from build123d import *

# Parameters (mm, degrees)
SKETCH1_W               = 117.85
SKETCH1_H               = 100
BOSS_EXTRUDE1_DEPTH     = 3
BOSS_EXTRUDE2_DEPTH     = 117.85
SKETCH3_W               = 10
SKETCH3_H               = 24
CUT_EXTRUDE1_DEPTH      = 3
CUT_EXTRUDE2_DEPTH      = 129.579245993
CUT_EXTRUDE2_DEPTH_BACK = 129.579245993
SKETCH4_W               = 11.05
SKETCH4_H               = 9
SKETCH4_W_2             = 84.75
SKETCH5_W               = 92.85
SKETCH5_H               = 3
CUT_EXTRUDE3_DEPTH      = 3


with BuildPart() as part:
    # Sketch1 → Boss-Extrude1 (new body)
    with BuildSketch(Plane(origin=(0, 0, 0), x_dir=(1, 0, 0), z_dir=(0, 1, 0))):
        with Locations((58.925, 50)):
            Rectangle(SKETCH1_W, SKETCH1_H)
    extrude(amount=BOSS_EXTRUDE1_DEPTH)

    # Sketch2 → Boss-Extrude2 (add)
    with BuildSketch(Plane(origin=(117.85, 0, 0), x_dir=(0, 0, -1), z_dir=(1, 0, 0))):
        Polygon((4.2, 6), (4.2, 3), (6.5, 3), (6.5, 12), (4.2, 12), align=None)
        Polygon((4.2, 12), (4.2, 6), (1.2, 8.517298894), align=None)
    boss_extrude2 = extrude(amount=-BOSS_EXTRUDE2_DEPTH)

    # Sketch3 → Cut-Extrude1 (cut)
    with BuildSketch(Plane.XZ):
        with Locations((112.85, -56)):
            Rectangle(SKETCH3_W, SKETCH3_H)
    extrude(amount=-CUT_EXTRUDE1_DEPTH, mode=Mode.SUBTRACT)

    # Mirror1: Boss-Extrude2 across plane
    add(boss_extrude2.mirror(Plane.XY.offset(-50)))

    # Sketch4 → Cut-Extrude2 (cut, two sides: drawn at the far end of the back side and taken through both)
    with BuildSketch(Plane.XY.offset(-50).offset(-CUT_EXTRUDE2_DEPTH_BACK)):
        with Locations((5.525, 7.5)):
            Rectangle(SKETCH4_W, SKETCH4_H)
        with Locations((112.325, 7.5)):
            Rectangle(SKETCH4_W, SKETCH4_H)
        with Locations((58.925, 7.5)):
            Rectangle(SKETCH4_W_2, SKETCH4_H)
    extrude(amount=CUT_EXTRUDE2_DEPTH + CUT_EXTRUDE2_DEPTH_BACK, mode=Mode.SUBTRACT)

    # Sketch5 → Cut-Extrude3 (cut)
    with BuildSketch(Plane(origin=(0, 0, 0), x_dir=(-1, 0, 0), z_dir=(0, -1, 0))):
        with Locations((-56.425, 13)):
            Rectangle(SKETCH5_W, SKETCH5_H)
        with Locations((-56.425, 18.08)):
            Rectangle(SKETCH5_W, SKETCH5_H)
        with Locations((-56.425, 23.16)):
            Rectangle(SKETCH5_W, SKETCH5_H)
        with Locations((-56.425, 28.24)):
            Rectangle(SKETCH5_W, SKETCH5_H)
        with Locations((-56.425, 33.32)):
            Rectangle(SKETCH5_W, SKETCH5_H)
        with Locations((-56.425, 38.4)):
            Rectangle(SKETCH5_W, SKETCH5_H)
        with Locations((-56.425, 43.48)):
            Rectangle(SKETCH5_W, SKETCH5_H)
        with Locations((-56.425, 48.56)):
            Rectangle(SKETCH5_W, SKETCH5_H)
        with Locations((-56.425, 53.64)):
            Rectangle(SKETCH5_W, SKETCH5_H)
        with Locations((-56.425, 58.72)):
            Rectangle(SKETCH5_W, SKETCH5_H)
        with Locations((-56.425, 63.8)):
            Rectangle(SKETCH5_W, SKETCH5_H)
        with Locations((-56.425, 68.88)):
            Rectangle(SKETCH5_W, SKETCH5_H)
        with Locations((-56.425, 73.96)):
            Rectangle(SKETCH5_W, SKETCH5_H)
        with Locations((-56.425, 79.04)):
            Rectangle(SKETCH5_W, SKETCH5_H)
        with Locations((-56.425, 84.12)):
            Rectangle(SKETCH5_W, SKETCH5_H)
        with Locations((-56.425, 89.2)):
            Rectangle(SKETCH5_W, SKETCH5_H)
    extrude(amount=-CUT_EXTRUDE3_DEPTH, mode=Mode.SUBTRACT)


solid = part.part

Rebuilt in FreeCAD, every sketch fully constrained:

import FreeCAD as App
import Part
import Sketcher
Q = App.Units.Quantity


def add_polygon(sketch, points):
    """Adds a closed chain of lines whose ends are joined by coincident constraints."""
    first, n = sketch.GeometryCount, len(points)
    for a, b in zip(points, points[1:] + points[:1]):
        sketch.addGeometry(Part.LineSegment(App.Vector(*a, 0), App.Vector(*b, 0)), False)
    for i in range(n):
        sketch.addConstraint(Sketcher.Constraint("Coincident", first + i, 2, first + (i + 1) % n, 1))

doc = App.newDocument("Part")
body = doc.addObject("PartDesign::Body", "Body")

# Sketch on XZ plane
sketch1 = body.newObject("Sketcher::SketchObject", "Sketch")
sketch1.AttachmentSupport = (doc.getObject("XZ_Plane"), [""])
sketch1.MapMode = "FlatFace"
add_polygon(sketch1, [(0, -100), (0, 0), (117.85, 0), (117.85, -100)])  # lines 0-3
sketch1.addConstraint([
    Sketcher.Constraint("Vertical", 0),
    Sketcher.Constraint("Horizontal", 1),
    Sketcher.Constraint("Vertical", 2),
    Sketcher.Constraint("Horizontal", 3),
    Sketcher.Constraint("Coincident", 0, 2, -1, 1),
    Sketcher.Constraint("DistanceY", 0, 1, 0, 2, 100.0),
    Sketcher.Constraint("DistanceX", 1, 1, 1, 2, 117.85),
])
pad1 = body.newObject("PartDesign::Pad", "Pad")
pad1.Profile = sketch1
pad1.Length = 3
pad1.Reversed = True

# Sketch on YZ plane
sketch2 = body.newObject("Sketcher::SketchObject", "Sketch001")
sketch2.AttachmentSupport = (doc.getObject("YZ_Plane"), [""])
sketch2.MapMode = "FlatFace"
sketch2.AttachmentOffset = App.Placement(App.Vector(0, 0, 117.85), App.Rotation())
add_polygon(sketch2, [(3, -4.2), (3, -6.5), (12, -6.5), (12, -4.2), (8.517299, -1.2), (6, -4.2)])  # lines 0-5
sketch2.addConstraint([
    Sketcher.Constraint("Vertical", 0),
    Sketcher.Constraint("Horizontal", 1),
    Sketcher.Constraint("Vertical", 2),
    Sketcher.Constraint("Horizontal", 5),
    Sketcher.Constraint("Horizontal", 2, 2, 4, 2),
    Sketcher.Constraint("DistanceX", 1, 1, 1, 2, 9.0),
    Sketcher.Constraint("DistanceX", 5, 2, 5, 1, 3.0),
    Sketcher.Constraint("Angle", 4, Q("-130 deg")),
    Sketcher.Constraint("DistanceY", 0, 2, 0, 1, 2.3),
    Sketcher.Constraint("DistanceX", -1, 1, 0, 2, 3.0),
    Sketcher.Constraint("DistanceY", 2, 2, 3, 2, 3.0),
    Sketcher.Constraint("DistanceY", 0, 2, -1, 1, 6.5),
])
pad2 = body.newObject("PartDesign::Pad", "Pad001")
pad2.Profile = sketch2
pad2.Length = 117.85
pad2.Reversed = True

# Sketch on XZ plane
sketch3 = body.newObject("Sketcher::SketchObject", "Sketch002")
sketch3.AttachmentSupport = (doc.getObject("XZ_Plane"), [""])
sketch3.MapMode = "FlatFace"
add_polygon(sketch3, [(107.85, -44), (107.85, -68), (117.85, -68), (117.85, -44)])  # lines 0-3
sketch3.addConstraint([
    Sketcher.Constraint("Vertical", 0),
    Sketcher.Constraint("Horizontal", 1),
    Sketcher.Constraint("Vertical", 2),
    Sketcher.Constraint("Horizontal", 3),
    Sketcher.Constraint("DistanceX", 1, 1, 1, 2, 10.0),
    Sketcher.Constraint("DistanceY", 0, 2, 0, 1, 24.0),
    Sketcher.Constraint("DistanceY", 0, 2, -1, 1, 68.0),
    Sketcher.Constraint("DistanceX", -1, 1, 0, 2, 107.85),
])
pocket1 = body.newObject("PartDesign::Pocket", "Pocket")
pocket1.Profile = sketch3
pocket1.Length = 3
doc.recompute()

datumplane = body.newObject("PartDesign::Plane", "DatumPlane")
datumplane.AttachmentSupport = (doc.getObject("XY_Plane"), [""])
datumplane.MapMode = "FlatFace"
datumplane.AttachmentOffset = App.Placement(App.Vector(0, 0, -50), App.Rotation())
mirrored = body.newObject("PartDesign::Mirrored", "Mirrored")
mirrored.Originals = [pad2]
mirrored.MirrorPlane = (datumplane, [""])
body.Tip = mirrored

# Sketch on XY plane
sketch4 = body.newObject("Sketcher::SketchObject", "Sketch003")
sketch4.AttachmentSupport = (doc.getObject("XY_Plane"), [""])
sketch4.MapMode = "FlatFace"
sketch4.AttachmentOffset = App.Placement(App.Vector(0, 0, -50), App.Rotation())
add_polygon(sketch4, [(0, 12), (0, 3), (11.05, 3), (11.05, 12)])  # lines 0-3
add_polygon(sketch4, [(106.8, 12), (106.8, 3), (117.85, 3), (117.85, 12)])  # lines 4-7
add_polygon(sketch4, [(16.55, 12), (16.55, 3), (101.3, 3), (101.3, 12)])  # lines 8-11
sketch4.addConstraint([
    Sketcher.Constraint("Vertical", 0),
    Sketcher.Constraint("Horizontal", 1),
    Sketcher.Constraint("Vertical", 2),
    Sketcher.Constraint("Horizontal", 3),
    Sketcher.Constraint("Vertical", 4),
    Sketcher.Constraint("Horizontal", 5),
    Sketcher.Constraint("Vertical", 6),
    Sketcher.Constraint("Horizontal", 7),
    Sketcher.Constraint("Vertical", 8),
    Sketcher.Constraint("Horizontal", 9),
    Sketcher.Constraint("Vertical", 10),
    Sketcher.Constraint("Horizontal", 11),
    Sketcher.Constraint("PointOnObject", 0, 2, -2),
    Sketcher.Constraint("Horizontal", 1, 2, 4, 2),
    Sketcher.Constraint("Horizontal", 3, 2, 6, 2),
    Sketcher.Constraint("Horizontal", 5, 2, 8, 2),
    Sketcher.Constraint("Horizontal", 7, 2, 10, 2),
    Sketcher.Constraint("Equal", 3, 5),
    Sketcher.Constraint("DistanceY", 0, 2, 0, 1, 9.0),
    Sketcher.Constraint("DistanceY", -1, 1, 0, 2, 3.0),
    Sketcher.Constraint("DistanceX", 1, 1, 1, 2, 11.05),
    Sketcher.Constraint("DistanceX", 9, 1, 9, 2, 84.75),
    Sketcher.Constraint("DistanceX", -1, 1, 4, 2, 106.8),
    Sketcher.Constraint("DistanceX", -1, 1, 9, 2, 101.3),
])
pocket2 = body.newObject("PartDesign::Pocket", "Pocket001")
pocket2.Profile = sketch4
pocket2.Type = "ThroughAll"
pocket2.Midplane = True

# Sketch on XZ plane
sketch5 = body.newObject("Sketcher::SketchObject", "Sketch004")
sketch5.AttachmentSupport = (doc.getObject("XZ_Plane"), [""])
sketch5.MapMode = "FlatFace"
add_polygon(sketch5, [(102.85, -14.5), (102.85, -11.5), (10, -11.5), (10, -14.5)])  # lines 0-3
add_polygon(sketch5, [(102.85, -19.58), (102.85, -16.58), (10, -16.58), (10, -19.58)])  # lines 4-7
add_polygon(sketch5, [(102.85, -24.66), (102.85, -21.66), (10, -21.66), (10, -24.66)])  # lines 8-11
add_polygon(sketch5, [(102.85, -29.74), (102.85, -26.74), (10, -26.74), (10, -29.74)])  # lines 12-15
add_polygon(sketch5, [(102.85, -34.82), (102.85, -31.82), (10, -31.82), (10, -34.82)])  # lines 16-19
add_polygon(sketch5, [(102.85, -39.9), (102.85, -36.9), (10, -36.9), (10, -39.9)])  # lines 20-23
add_polygon(sketch5, [(102.85, -44.98), (102.85, -41.98), (10, -41.98), (10, -44.98)])  # lines 24-27
add_polygon(sketch5, [(102.85, -50.06), (102.85, -47.06), (10, -47.06), (10, -50.06)])  # lines 28-31
add_polygon(sketch5, [(102.85, -55.14), (102.85, -52.14), (10, -52.14), (10, -55.14)])  # lines 32-35
add_polygon(sketch5, [(102.85, -60.22), (102.85, -57.22), (10, -57.22), (10, -60.22)])  # lines 36-39
add_polygon(sketch5, [(102.85, -65.3), (102.85, -62.3), (10, -62.3), (10, -65.3)])  # lines 40-43
add_polygon(sketch5, [(102.85, -70.38), (102.85, -67.38), (10, -67.38), (10, -70.38)])  # lines 44-47
add_polygon(sketch5, [(102.85, -75.46), (102.85, -72.46), (10, -72.46), (10, -75.46)])  # lines 48-51
add_polygon(sketch5, [(102.85, -80.54), (102.85, -77.54), (10, -77.54), (10, -80.54)])  # lines 52-55
add_polygon(sketch5, [(102.85, -85.62), (102.85, -82.62), (10, -82.62), (10, -85.62)])  # lines 56-59
add_polygon(sketch5, [(102.85, -90.7), (102.85, -87.7), (10, -87.7), (10, -90.7)])  # lines 60-63
sketch5.addConstraint([
    Sketcher.Constraint("Vertical", 0),
    Sketcher.Constraint("Horizontal", 1),
    Sketcher.Constraint("Vertical", 2),
    Sketcher.Constraint("Horizontal", 3),
    Sketcher.Constraint("Vertical", 4),
    Sketcher.Constraint("Horizontal", 5),
    Sketcher.Constraint("Vertical", 6),
    Sketcher.Constraint("Horizontal", 7),
    Sketcher.Constraint("Vertical", 8),
    Sketcher.Constraint("Horizontal", 9),
    Sketcher.Constraint("Vertical", 10),
    Sketcher.Constraint("Horizontal", 11),
    Sketcher.Constraint("Vertical", 12),
    Sketcher.Constraint("Horizontal", 13),
    Sketcher.Constraint("Vertical", 14),
    Sketcher.Constraint("Horizontal", 15),
    Sketcher.Constraint("Vertical", 16),
    Sketcher.Constraint("Horizontal", 17),
    Sketcher.Constraint("Vertical", 18),
    Sketcher.Constraint("Horizontal", 19),
    Sketcher.Constraint("Vertical", 20),
    Sketcher.Constraint("Horizontal", 21),
    Sketcher.Constraint("Vertical", 22),
    Sketcher.Constraint("Horizontal", 23),
    Sketcher.Constraint("Vertical", 24),
    Sketcher.Constraint("Horizontal", 25),
    Sketcher.Constraint("Vertical", 26),
    Sketcher.Constraint("Horizontal", 27),
    Sketcher.Constraint("Vertical", 28),
    Sketcher.Constraint("Horizontal", 29),
    Sketcher.Constraint("Vertical", 30),
    Sketcher.Constraint("Horizontal", 31),
    Sketcher.Constraint("Vertical", 32),
    Sketcher.Constraint("Horizontal", 33),
    Sketcher.Constraint("Vertical", 34),
    Sketcher.Constraint("Horizontal", 35),
    Sketcher.Constraint("Vertical", 36),
    Sketcher.Constraint("Horizontal", 37),
    Sketcher.Constraint("Vertical", 38),
    Sketcher.Constraint("Horizontal", 39),
    Sketcher.Constraint("Vertical", 40),
    Sketcher.Constraint("Horizontal", 41),
    Sketcher.Constraint("Vertical", 42),
    Sketcher.Constraint("Horizontal", 43),
    Sketcher.Constraint("Vertical", 44),
    Sketcher.Constraint("Horizontal", 45),
    Sketcher.Constraint("Vertical", 46),
    Sketcher.Constraint("Horizontal", 47),
    Sketcher.Constraint("Vertical", 48),
    Sketcher.Constraint("Horizontal", 49),
    Sketcher.Constraint("Vertical", 50),
    Sketcher.Constraint("Horizontal", 51),
    Sketcher.Constraint("Vertical", 52),
    Sketcher.Constraint("Horizontal", 53),
    Sketcher.Constraint("Vertical", 54),
    Sketcher.Constraint("Horizontal", 55),
    Sketcher.Constraint("Vertical", 56),
    Sketcher.Constraint("Horizontal", 57),
    Sketcher.Constraint("Vertical", 58),
    Sketcher.Constraint("Horizontal", 59),
    Sketcher.Constraint("Vertical", 60),
    Sketcher.Constraint("Horizontal", 61),
    Sketcher.Constraint("Vertical", 62),
    Sketcher.Constraint("Horizontal", 63),
    Sketcher.Constraint("Vertical", 3, 2, 4, 2),
    Sketcher.Constraint("Vertical", 2, 2, 5, 2),
    Sketcher.Constraint("Vertical", 7, 2, 8, 2),
    Sketcher.Constraint("Vertical", 6, 2, 9, 2),
    Sketcher.Constraint("Vertical", 11, 2, 12, 2),
    Sketcher.Constraint("Vertical", 10, 2, 13, 2),
    Sketcher.Constraint("Vertical", 15, 2, 16, 2),
    Sketcher.Constraint("Vertical", 14, 2, 17, 2),
    Sketcher.Constraint("Vertical", 19, 2, 20, 2),
    Sketcher.Constraint("Vertical", 18, 2, 21, 2),
    Sketcher.Constraint("Vertical", 23, 2, 24, 2),
    Sketcher.Constraint("Vertical", 22, 2, 25, 2),
    Sketcher.Constraint("Vertical", 27, 2, 28, 2),
    Sketcher.Constraint("Vertical", 26, 2, 29, 2),
    Sketcher.Constraint("Vertical", 31, 2, 32, 2),
    Sketcher.Constraint("Vertical", 30, 2, 33, 2),
    Sketcher.Constraint("Vertical", 35, 2, 36, 2),
    Sketcher.Constraint("Vertical", 34, 2, 37, 2),
    Sketcher.Constraint("Vertical", 39, 2, 40, 2),
    Sketcher.Constraint("Vertical", 38, 2, 41, 2),
    Sketcher.Constraint("Vertical", 43, 2, 44, 2),
    Sketcher.Constraint("Vertical", 42, 2, 45, 2),
    Sketcher.Constraint("Vertical", 47, 2, 48, 2),
    Sketcher.Constraint("Vertical", 46, 2, 49, 2),
    Sketcher.Constraint("Vertical", 51, 2, 52, 2),
    Sketcher.Constraint("Vertical", 50, 2, 53, 2),
    Sketcher.Constraint("Vertical", 55, 2, 56, 2),
    Sketcher.Constraint("Vertical", 54, 2, 57, 2),
    Sketcher.Constraint("Vertical", 59, 2, 60, 2),
    Sketcher.Constraint("Vertical", 58, 2, 61, 2),
    Sketcher.Constraint("Equal", 2, 4),
    Sketcher.Constraint("Equal", 6, 8),
    Sketcher.Constraint("Equal", 10, 12),
    Sketcher.Constraint("Equal", 14, 16),
    Sketcher.Constraint("Equal", 18, 20),
    Sketcher.Constraint("Equal", 22, 24),
    Sketcher.Constraint("Equal", 26, 28),
    Sketcher.Constraint("Equal", 30, 32),
    Sketcher.Constraint("Equal", 34, 36),
    Sketcher.Constraint("Equal", 38, 40),
    Sketcher.Constraint("Equal", 42, 44),
    Sketcher.Constraint("Equal", 46, 48),
    Sketcher.Constraint("Equal", 50, 52),
    Sketcher.Constraint("Equal", 54, 56),
    Sketcher.Constraint("Equal", 58, 60),
    Sketcher.Constraint("DistanceY", 0, 1, 0, 2, 3.0),
    Sketcher.Constraint("DistanceX", -1, 1, 1, 2, 10.0),
    Sketcher.Constraint("DistanceX", 1, 2, 1, 1, 92.85),
    Sketcher.Constraint("DistanceY", 0, 2, -1, 1, 11.5),
    Sketcher.Constraint("DistanceY", 20, 2, -1, 1, 36.9),
    Sketcher.Constraint("DistanceY", 40, 2, -1, 1, 62.3),
    Sketcher.Constraint("DistanceY", 60, 2, -1, 1, 87.7),
    Sketcher.Constraint("DistanceY", 4, 2, -1, 1, 16.58),
    Sketcher.Constraint("DistanceY", 8, 2, -1, 1, 21.66),
    Sketcher.Constraint("DistanceY", 12, 2, -1, 1, 26.74),
    Sketcher.Constraint("DistanceY", 16, 2, -1, 1, 31.82),
    Sketcher.Constraint("DistanceY", 24, 2, -1, 1, 41.98),
    Sketcher.Constraint("DistanceY", 28, 2, -1, 1, 47.06),
    Sketcher.Constraint("DistanceY", 32, 2, -1, 1, 52.14),
    Sketcher.Constraint("DistanceY", 36, 2, -1, 1, 57.22),
    Sketcher.Constraint("DistanceY", 44, 2, -1, 1, 67.38),
    Sketcher.Constraint("DistanceY", 48, 2, -1, 1, 72.46),
    Sketcher.Constraint("DistanceY", 52, 2, -1, 1, 77.54),
    Sketcher.Constraint("DistanceY", 56, 2, -1, 1, 82.62),
])
pocket3 = body.newObject("PartDesign::Pocket", "Pocket002")
pocket3.Profile = sketch5
pocket3.Length = 3

doc.recompute()
